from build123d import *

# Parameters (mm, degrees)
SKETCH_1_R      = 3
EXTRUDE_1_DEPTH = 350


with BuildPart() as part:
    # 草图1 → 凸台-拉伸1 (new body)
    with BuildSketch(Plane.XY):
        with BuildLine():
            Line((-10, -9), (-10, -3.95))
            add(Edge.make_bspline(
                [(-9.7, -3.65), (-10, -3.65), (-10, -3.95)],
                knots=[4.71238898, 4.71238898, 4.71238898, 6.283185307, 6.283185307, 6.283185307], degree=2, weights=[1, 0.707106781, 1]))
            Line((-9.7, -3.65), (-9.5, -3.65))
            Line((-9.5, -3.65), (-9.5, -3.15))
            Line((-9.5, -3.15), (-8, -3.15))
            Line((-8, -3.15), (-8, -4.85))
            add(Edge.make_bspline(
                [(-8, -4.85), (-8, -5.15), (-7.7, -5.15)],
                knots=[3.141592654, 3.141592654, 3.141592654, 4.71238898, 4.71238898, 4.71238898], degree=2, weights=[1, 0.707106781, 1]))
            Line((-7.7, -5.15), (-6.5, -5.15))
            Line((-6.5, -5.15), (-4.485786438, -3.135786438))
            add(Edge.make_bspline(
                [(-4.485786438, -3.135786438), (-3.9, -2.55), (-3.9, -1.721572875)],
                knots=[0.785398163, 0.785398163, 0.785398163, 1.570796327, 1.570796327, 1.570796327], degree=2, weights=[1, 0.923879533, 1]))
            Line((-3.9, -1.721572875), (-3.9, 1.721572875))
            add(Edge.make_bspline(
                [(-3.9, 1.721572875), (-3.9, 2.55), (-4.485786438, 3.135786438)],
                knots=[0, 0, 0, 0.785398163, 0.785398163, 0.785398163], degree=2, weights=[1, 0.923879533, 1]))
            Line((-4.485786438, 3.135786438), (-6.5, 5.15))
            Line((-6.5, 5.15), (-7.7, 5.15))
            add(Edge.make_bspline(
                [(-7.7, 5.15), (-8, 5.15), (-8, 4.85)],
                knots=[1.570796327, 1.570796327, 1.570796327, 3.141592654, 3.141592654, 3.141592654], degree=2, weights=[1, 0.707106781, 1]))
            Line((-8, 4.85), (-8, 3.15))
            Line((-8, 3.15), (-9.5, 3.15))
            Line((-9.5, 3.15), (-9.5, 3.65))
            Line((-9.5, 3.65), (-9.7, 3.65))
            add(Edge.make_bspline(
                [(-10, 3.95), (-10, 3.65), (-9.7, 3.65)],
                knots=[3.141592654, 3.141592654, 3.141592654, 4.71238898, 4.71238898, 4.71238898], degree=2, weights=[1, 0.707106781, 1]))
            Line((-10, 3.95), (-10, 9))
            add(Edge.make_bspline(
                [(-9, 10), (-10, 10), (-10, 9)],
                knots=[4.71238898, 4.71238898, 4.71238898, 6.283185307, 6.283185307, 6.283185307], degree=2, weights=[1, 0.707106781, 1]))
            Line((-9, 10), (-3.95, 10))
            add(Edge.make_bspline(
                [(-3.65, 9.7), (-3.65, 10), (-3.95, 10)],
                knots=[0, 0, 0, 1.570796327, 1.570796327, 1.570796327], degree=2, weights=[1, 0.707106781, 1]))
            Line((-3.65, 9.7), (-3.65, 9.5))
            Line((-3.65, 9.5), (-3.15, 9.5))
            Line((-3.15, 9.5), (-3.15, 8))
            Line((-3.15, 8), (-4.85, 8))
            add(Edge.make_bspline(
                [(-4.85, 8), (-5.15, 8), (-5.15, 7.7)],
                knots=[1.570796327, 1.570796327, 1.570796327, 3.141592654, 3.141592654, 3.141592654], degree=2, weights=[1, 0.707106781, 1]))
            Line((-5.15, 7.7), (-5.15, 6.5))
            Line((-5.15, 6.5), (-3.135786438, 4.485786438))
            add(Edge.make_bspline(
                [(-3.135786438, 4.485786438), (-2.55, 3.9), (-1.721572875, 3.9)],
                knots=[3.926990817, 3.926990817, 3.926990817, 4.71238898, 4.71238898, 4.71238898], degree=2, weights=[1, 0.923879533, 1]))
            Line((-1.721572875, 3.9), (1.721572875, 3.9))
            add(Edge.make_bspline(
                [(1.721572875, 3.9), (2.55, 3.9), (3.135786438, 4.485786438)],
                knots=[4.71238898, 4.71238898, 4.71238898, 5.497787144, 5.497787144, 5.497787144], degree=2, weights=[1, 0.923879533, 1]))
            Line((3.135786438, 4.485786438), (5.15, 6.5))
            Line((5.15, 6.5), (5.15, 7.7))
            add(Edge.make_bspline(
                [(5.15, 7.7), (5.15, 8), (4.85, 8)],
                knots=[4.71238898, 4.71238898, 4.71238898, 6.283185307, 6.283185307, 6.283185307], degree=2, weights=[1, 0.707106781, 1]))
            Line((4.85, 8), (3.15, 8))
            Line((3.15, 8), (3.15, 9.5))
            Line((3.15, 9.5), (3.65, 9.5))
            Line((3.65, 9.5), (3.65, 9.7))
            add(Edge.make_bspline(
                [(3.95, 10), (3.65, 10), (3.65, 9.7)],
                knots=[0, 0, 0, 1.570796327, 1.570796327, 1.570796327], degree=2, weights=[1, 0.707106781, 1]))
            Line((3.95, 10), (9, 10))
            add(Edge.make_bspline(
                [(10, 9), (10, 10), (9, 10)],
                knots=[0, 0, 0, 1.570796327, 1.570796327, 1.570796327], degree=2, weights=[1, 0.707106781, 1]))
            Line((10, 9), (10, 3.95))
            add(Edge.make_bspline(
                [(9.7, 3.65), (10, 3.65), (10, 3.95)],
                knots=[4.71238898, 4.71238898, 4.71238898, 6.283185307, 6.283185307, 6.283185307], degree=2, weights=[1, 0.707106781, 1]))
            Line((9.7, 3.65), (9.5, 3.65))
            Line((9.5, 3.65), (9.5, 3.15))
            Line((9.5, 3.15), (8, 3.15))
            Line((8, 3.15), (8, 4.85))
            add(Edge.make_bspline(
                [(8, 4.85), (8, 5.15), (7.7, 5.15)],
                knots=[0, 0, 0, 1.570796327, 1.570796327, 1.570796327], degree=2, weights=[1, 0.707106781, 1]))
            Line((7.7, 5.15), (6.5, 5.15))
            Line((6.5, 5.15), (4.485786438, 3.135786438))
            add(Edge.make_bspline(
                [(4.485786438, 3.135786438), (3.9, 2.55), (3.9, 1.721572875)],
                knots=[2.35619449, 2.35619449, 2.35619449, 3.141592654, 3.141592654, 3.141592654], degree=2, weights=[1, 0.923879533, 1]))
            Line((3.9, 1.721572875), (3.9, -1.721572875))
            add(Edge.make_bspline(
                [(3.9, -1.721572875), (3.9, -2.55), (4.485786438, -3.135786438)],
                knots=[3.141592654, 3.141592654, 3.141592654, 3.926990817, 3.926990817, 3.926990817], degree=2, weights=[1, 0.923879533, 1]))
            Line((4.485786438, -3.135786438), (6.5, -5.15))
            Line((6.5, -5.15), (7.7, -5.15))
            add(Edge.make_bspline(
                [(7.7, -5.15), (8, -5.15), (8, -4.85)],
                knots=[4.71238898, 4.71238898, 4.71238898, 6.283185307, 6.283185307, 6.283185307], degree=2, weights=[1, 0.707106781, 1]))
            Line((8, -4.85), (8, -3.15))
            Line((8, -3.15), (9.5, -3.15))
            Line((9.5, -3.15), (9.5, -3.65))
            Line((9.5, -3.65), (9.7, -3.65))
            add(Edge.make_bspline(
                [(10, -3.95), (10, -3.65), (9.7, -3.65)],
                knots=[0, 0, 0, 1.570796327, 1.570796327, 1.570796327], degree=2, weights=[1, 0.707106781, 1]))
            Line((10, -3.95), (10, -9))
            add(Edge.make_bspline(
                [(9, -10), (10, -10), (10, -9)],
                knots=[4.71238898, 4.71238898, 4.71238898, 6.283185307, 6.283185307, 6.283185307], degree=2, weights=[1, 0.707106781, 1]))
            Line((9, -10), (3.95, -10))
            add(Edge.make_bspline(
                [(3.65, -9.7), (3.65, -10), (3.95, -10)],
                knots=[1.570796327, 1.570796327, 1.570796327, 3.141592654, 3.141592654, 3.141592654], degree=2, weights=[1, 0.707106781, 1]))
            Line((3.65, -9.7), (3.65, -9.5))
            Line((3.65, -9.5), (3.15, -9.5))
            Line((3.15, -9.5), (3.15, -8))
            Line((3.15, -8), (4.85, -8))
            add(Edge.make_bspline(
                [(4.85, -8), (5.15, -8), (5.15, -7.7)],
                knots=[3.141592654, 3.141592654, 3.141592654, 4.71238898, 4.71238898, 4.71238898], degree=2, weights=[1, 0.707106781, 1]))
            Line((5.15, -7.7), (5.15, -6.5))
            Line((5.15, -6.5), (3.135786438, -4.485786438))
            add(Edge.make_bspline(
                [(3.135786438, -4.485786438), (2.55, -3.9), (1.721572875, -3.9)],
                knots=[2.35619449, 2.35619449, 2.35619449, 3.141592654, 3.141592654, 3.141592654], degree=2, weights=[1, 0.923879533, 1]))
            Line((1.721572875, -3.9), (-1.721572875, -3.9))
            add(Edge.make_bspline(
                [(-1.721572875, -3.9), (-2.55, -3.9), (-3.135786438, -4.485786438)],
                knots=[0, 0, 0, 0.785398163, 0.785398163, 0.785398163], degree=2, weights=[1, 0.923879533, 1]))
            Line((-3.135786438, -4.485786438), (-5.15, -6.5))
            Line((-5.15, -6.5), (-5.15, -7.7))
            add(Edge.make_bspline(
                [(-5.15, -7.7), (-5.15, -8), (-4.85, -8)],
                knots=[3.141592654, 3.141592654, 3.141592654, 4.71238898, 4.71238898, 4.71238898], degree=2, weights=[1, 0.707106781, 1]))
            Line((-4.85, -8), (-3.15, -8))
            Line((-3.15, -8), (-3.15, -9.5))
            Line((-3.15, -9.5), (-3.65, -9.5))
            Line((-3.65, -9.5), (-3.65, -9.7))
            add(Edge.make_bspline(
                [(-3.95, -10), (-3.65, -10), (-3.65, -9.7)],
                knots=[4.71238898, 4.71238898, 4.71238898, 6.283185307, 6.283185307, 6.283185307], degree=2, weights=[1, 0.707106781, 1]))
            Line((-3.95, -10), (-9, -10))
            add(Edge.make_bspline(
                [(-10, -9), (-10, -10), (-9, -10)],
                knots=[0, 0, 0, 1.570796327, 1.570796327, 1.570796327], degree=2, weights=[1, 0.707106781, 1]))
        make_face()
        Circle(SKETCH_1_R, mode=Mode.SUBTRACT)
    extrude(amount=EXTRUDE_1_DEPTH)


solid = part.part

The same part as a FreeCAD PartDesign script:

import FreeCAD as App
import Part
import Sketcher

V = App.Vector

doc = App.newDocument("Part")
params = doc.addObject("Spreadsheet::Sheet", "Params")
for row, (alias, value) in enumerate([
    ("sketch1_diameter", "6 mm"),
    ("sketch1_width", "0.5 mm"),
    ("sketch1_width2", "1.7 mm"),
    ("sketch1_width3", "0.2 mm"),
    ("sketch1_width4", "1.2 mm"),
    ("pad1_length", "350 mm"),
], start=1):
    params.set(f"A{row}", alias)
    params.set(f"B{row}", "=" + value)
    params.setAlias(f"B{row}", alias)

body = doc.addObject("PartDesign::Body", "Body")

sketch1 = doc.addObject("Sketcher::SketchObject", "Sketch")
body.addObject(sketch1)
sketch1.AttachmentSupport = (doc.XY_Plane, [""])
sketch1.MapMode = "FlatFace"
sketch1.addGeometry([
    Part.LineSegment(V(-10, -3.95, 0), V(-10, -9, 0)),
    Part.BSplineCurve([V(-10, -9, 0), V(-10, -10, 0), V(-9, -10, 0)], [3, 3], [0, 1.570796327], False, 2, [1, 0.707106781, 1], False),
    Part.LineSegment(V(-9, -10, 0), V(-3.95, -10, 0)),
    Part.BSplineCurve([V(-3.95, -10, 0), V(-3.65, -10, 0), V(-3.65, -9.7, 0)], [3, 3], [4.71238898, 6.283185307], False, 2, [1, 0.707106781, 1], False),
    Part.LineSegment(V(-3.65, -9.7, 0), V(-3.65, -9.5, 0)),
    Part.LineSegment(V(-3.65, -9.5, 0), V(-3.15, -9.5, 0)),
    Part.LineSegment(V(-3.15, -9.5, 0), V(-3.15, -8, 0)),
    Part.LineSegment(V(-3.15, -8, 0), V(-4.85, -8, 0)),
    Part.BSplineCurve([V(-5.15, -7.7, 0), V(-5.15, -8, 0), V(-4.85, -8, 0)], [3, 3], [3.141592654, 4.71238898], False, 2, [1, 0.707106781, 1], False),
    Part.LineSegment(V(-5.15, -7.7, 0), V(-5.15, -6.5, 0)),
    Part.LineSegment(V(-5.15, -6.5, 0), V(-3.135786, -4.485786, 0)),
    Part.BSplineCurve([V(-1.721573, -3.9, 0), V(-2.55, -3.9, 0), V(-3.135786, -4.485786, 0)], [3, 3], [0, 0.785398163], False, 2, [1, 0.923879533, 1], False),
    Part.LineSegment(V(-1.721573, -3.9, 0), V(1.721573, -3.9, 0)),
    Part.BSplineCurve([V(3.135786, -4.485786, 0), V(2.55, -3.9, 0), V(1.721573, -3.9, 0)], [3, 3], [2.35619449, 3.141592654], False, 2, [1, 0.923879533, 1], False),
    Part.LineSegment(V(3.135786, -4.485786, 0), V(5.15, -6.5, 0)),
    Part.LineSegment(V(5.15, -6.5, 0), V(5.15, -7.7, 0)),
    Part.BSplineCurve([V(4.85, -8, 0), V(5.15, -8, 0), V(5.15, -7.7, 0)], [3, 3], [3.141592654, 4.71238898], False, 2, [1, 0.707106781, 1], False),
    Part.LineSegment(V(4.85, -8, 0), V(3.15, -8, 0)),
    Part.LineSegment(V(3.15, -8, 0), V(3.15, -9.5, 0)),
    Part.LineSegment(V(3.15, -9.5, 0), V(3.65, -9.5, 0)),
    Part.LineSegment(V(3.65, -9.5, 0), V(3.65, -9.7, 0)),
    Part.BSplineCurve([V(3.65, -9.7, 0), V(3.65, -10, 0), V(3.95, -10, 0)], [3, 3], [1.570796327, 3.141592654], False, 2, [1, 0.707106781, 1], False),
    Part.LineSegment(V(3.95, -10, 0), V(9, -10, 0)),
    Part.BSplineCurve([V(9, -10, 0), V(10, -10, 0), V(10, -9, 0)], [3, 3], [4.71238898, 6.283185307], False, 2, [1, 0.707106781, 1], False),
    Part.LineSegment(V(10, -9, 0), V(10, -3.95, 0)),
    Part.BSplineCurve([V(10, -3.95, 0), V(10, -3.65, 0), V(9.7, -3.65, 0)], [3, 3], [0, 1.570796327], False, 2, [1, 0.707106781, 1], False),
    Part.LineSegment(V(9.7, -3.65, 0), V(9.5, -3.65, 0)),
    Part.LineSegment(V(9.5, -3.65, 0), V(9.5, -3.15, 0)),
    Part.LineSegment(V(9.5, -3.15, 0), V(8, -3.15, 0)),
    Part.LineSegment(V(8, -3.15, 0), V(8, -4.85, 0)),
    Part.BSplineCurve([V(7.7, -5.15, 0), V(8, -5.15, 0), V(8, -4.85, 0)], [3, 3], [4.71238898, 6.283185307], False, 2, [1, 0.707106781, 1], False),
    Part.LineSegment(V(7.7, -5.15, 0), V(6.5, -5.15, 0)),
    Part.LineSegment(V(6.5, -5.15, 0), V(4.485786, -3.135786, 0)),
    Part.BSplineCurve([V(3.9, -1.721573, 0), V(3.9, -2.55, 0), V(4.485786, -3.135786, 0)], [3, 3], [3.141592654, 3.926990817], False, 2, [1, 0.923879533, 1], False),
    Part.LineSegment(V(3.9, -1.721573, 0), V(3.9, 1.721573, 0)),
    Part.BSplineCurve([V(4.485786, 3.135786, 0), V(3.9, 2.55, 0), V(3.9, 1.721573, 0)], [3, 3], [2.35619449, 3.141592654], False, 2, [1, 0.923879533, 1], False),
    Part.LineSegment(V(4.485786, 3.135786, 0), V(6.5, 5.15, 0)),
    Part.LineSegment(V(6.5, 5.15, 0), V(7.7, 5.15, 0)),
    Part.BSplineCurve([V(8, 4.85, 0), V(8, 5.15, 0), V(7.7, 5.15, 0)], [3, 3], [0, 1.570796327], False, 2, [1, 0.707106781, 1], False),
    Part.LineSegment(V(8, 4.85, 0), V(8, 3.15, 0)),
    Part.LineSegment(V(8, 3.15, 0), V(9.5, 3.15, 0)),
    Part.LineSegment(V(9.5, 3.15, 0), V(9.5, 3.65, 0)),
    Part.LineSegment(V(9.5, 3.65, 0), V(9.7, 3.65, 0)),
    Part.BSplineCurve([V(9.7, 3.65, 0), V(10, 3.65, 0), V(10, 3.95, 0)], [3, 3], [4.71238898, 6.283185307], False, 2, [1, 0.707106781, 1], False),
    Part.LineSegment(V(10, 3.95, 0), V(10, 9, 0)),
    Part.BSplineCurve([V(10, 9, 0), V(10, 10, 0), V(9, 10, 0)], [3, 3], [0, 1.570796327], False, 2, [1, 0.707106781, 1], False),
    Part.LineSegment(V(9, 10, 0), V(3.95, 10, 0)),
    Part.BSplineCurve([V(3.95, 10, 0), V(3.65, 10, 0), V(3.65, 9.7, 0)], [3, 3], [0, 1.570796327], False, 2, [1, 0.707106781, 1], False),
    Part.LineSegment(V(3.65, 9.7, 0), V(3.65, 9.5, 0)),
    Part.LineSegment(V(3.65, 9.5, 0), V(3.15, 9.5, 0)),
    Part.LineSegment(V(3.15, 9.5, 0), V(3.15, 8, 0)),
    Part.LineSegment(V(3.15, 8, 0), V(4.85, 8, 0)),
    Part.BSplineCurve([V(5.15, 7.7, 0), V(5.15, 8, 0), V(4.85, 8, 0)], [3, 3], [4.71238898, 6.283185307], False, 2, [1, 0.707106781, 1], False),
    Part.LineSegment(V(5.15, 7.7, 0), V(5.15, 6.5, 0)),
    Part.LineSegment(V(5.15, 6.5, 0), V(3.135786, 4.485786, 0)),
    Part.BSplineCurve([V(1.721573, 3.9, 0), V(2.55, 3.9, 0), V(3.135786, 4.485786, 0)], [3, 3], [4.71238898, 5.497787144], False, 2, [1, 0.923879533, 1], False),
    Part.LineSegment(V(1.721573, 3.9, 0), V(-1.721573, 3.9, 0)),
    Part.BSplineCurve([V(-3.135786, 4.485786, 0), V(-2.55, 3.9, 0), V(-1.721573, 3.9, 0)], [3, 3], [3.926990817, 4.71238898], False, 2, [1, 0.923879533, 1], False),
    Part.LineSegment(V(-3.135786, 4.485786, 0), V(-5.15, 6.5, 0)),
    Part.LineSegment(V(-5.15, 6.5, 0), V(-5.15, 7.7, 0)),
    Part.BSplineCurve([V(-4.85, 8, 0), V(-5.15, 8, 0), V(-5.15, 7.7, 0)], [3, 3], [1.570796327, 3.141592654], False, 2, [1, 0.707106781, 1], False),
    Part.LineSegment(V(-4.85, 8, 0), V(-3.15, 8, 0)),
    Part.LineSegment(V(-3.15, 8, 0), V(-3.15, 9.5, 0)),
    Part.LineSegment(V(-3.15, 9.5, 0), V(-3.65, 9.5, 0)),
    Part.LineSegment(V(-3.65, 9.5, 0), V(-3.65, 9.7, 0)),
    Part.BSplineCurve([V(-3.65, 9.7, 0), V(-3.65, 10, 0), V(-3.95, 10, 0)], [3, 3], [0, 1.570796327], False, 2, [1, 0.707106781, 1], False),
    Part.LineSegment(V(-3.95, 10, 0), V(-9, 10, 0)),
    Part.BSplineCurve([V(-9, 10, 0), V(-10, 10, 0), V(-10, 9, 0)], [3, 3], [4.71238898, 6.283185307], False, 2, [1, 0.707106781, 1], False),
    Part.LineSegment(V(-10, 9, 0), V(-10, 3.95, 0)),
    Part.BSplineCurve([V(-10, 3.95, 0), V(-10, 3.65, 0), V(-9.7, 3.65, 0)], [3, 3], [3.141592654, 4.71238898], False, 2, [1, 0.707106781, 1], False),
    Part.LineSegment(V(-9.7, 3.65, 0), V(-9.5, 3.65, 0)),
    Part.LineSegment(V(-9.5, 3.65, 0), V(-9.5, 3.15, 0)),
    Part.LineSegment(V(-9.5, 3.15, 0), V(-8, 3.15, 0)),
    Part.LineSegment(V(-8, 3.15, 0), V(-8, 4.85, 0)),
    Part.BSplineCurve([V(-7.7, 5.15, 0), V(-8, 5.15, 0), V(-8, 4.85, 0)], [3, 3], [1.570796327, 3.141592654], False, 2, [1, 0.707106781, 1], False),
    Part.LineSegment(V(-7.7, 5.15, 0), V(-6.5, 5.15, 0)),
    Part.LineSegment(V(-6.5, 5.15, 0), V(-4.485786, 3.135786, 0)),
    Part.BSplineCurve([V(-3.9, 1.721573, 0), V(-3.9, 2.55, 0), V(-4.485786, 3.135786, 0)], [3, 3], [0, 0.785398163], False, 2, [1, 0.923879533, 1], False),
    Part.LineSegment(V(-3.9, 1.721573, 0), V(-3.9, -1.721573, 0)),
    Part.BSplineCurve([V(-4.485786, -3.135786, 0), V(-3.9, -2.55, 0), V(-3.9, -1.721573, 0)], [3, 3], [0.785398163, 1.570796327], False, 2, [1, 0.923879533, 1], False),
    Part.LineSegment(V(-4.485786, -3.135786, 0), V(-6.5, -5.15, 0)),
    Part.LineSegment(V(-6.5, -5.15, 0), V(-7.7, -5.15, 0)),
    Part.BSplineCurve([V(-8, -4.85, 0), V(-8, -5.15, 0), V(-7.7, -5.15, 0)], [3, 3], [3.141592654, 4.71238898], False, 2, [1, 0.707106781, 1], False),
    Part.LineSegment(V(-8, -4.85, 0), V(-8, -3.15, 0)),
    Part.LineSegment(V(-8, -3.15, 0), V(-9.5, -3.15, 0)),
    Part.LineSegment(V(-9.5, -3.15, 0), V(-9.5, -3.65, 0)),
    Part.LineSegment(V(-9.5, -3.65, 0), V(-9.7, -3.65, 0)),
    Part.BSplineCurve([V(-9.7, -3.65, 0), V(-10, -3.65, 0), V(-10, -3.95, 0)], [3, 3], [4.71238898, 6.283185307], False, 2, [1, 0.707106781, 1], False),
    Part.Circle(V(0, 0, 0), V(0, 0, 1), 3),
], False)
sketch1.addConstraint([
    Sketcher.Constraint("Block", 1),
    Sketcher.Constraint("Block", 3),
    Sketcher.Constraint("Block", 8),
    Sketcher.Constraint("Block", 11),
    Sketcher.Constraint("Block", 13),
    Sketcher.Constraint("Block", 16),
    Sketcher.Constraint("Block", 21),
    Sketcher.Constraint("Block", 23),
    Sketcher.Constraint("Block", 25),
    Sketcher.Constraint("Block", 30),
    Sketcher.Constraint("Block", 33),
    Sketcher.Constraint("Block", 35),
    Sketcher.Constraint("Block", 38),
    Sketcher.Constraint("Block", 43),
    Sketcher.Constraint("Block", 45),
    Sketcher.Constraint("Block", 47),
    Sketcher.Constraint("Block", 52),
    Sketcher.Constraint("Block", 55),
    Sketcher.Constraint("Block", 57),
    Sketcher.Constraint("Block", 60),
    Sketcher.Constraint("Block", 65),
    Sketcher.Constraint("Block", 67),
    Sketcher.Constraint("Block", 69),
    Sketcher.Constraint("Block", 74),
    Sketcher.Constraint("Block", 77),
    Sketcher.Constraint("Block", 79),
    Sketcher.Constraint("Block", 82),
    Sketcher.Constraint("Block", 87),
    Sketcher.Constraint("Coincident", 0, 2, 1, 1),
    Sketcher.Constraint("Coincident", 1, 2, 2, 1),
    Sketcher.Constraint("Coincident", 2, 2, 3, 1),
    Sketcher.Constraint("Coincident", 3, 2, 4, 1),
    Sketcher.Constraint("Coincident", 4, 2, 5, 1),
    Sketcher.Constraint("Coincident", 5, 2, 6, 1),
    Sketcher.Constraint("Coincident", 6, 2, 7, 1),
    Sketcher.Constraint("Coincident", 7, 2, 8, 2),
    Sketcher.Constraint("Coincident", 8, 1, 9, 1),
    Sketcher.Constraint("Coincident", 9, 2, 10, 1),
    Sketcher.Constraint("Coincident", 10, 2, 11, 2),
    Sketcher.Constraint("Coincident", 11, 1, 12, 1),
    Sketcher.Constraint("Coincident", 12, 2, 13, 2),
    Sketcher.Constraint("Coincident", 13, 1, 14, 1),
    Sketcher.Constraint("Coincident", 14, 2, 15, 1),
    Sketcher.Constraint("Coincident", 15, 2, 16, 2),
    Sketcher.Constraint("Coincident", 16, 1, 17, 1),
    Sketcher.Constraint("Coincident", 17, 2, 18, 1),
    Sketcher.Constraint("Coincident", 18, 2, 19, 1),
    Sketcher.Constraint("Coincident", 19, 2, 20, 1),
    Sketcher.Constraint("Coincident", 20, 2, 21, 1),
    Sketcher.Constraint("Coincident", 21, 2, 22, 1),
    Sketcher.Constraint("Coincident", 22, 2, 23, 1),
    Sketcher.Constraint("Coincident", 23, 2, 24, 1),
    Sketcher.Constraint("Coincident", 24, 2, 25, 1),
    Sketcher.Constraint("Coincident", 25, 2, 26, 1),
    Sketcher.Constraint("Coincident", 26, 2, 27, 1),
    Sketcher.Constraint("Coincident", 27, 2, 28, 1),
    Sketcher.Constraint("Coincident", 28, 2, 29, 1),
    Sketcher.Constraint("Coincident", 29, 2, 30, 2),
    Sketcher.Constraint("Coincident", 30, 1, 31, 1),
    Sketcher.Constraint("Coincident", 31, 2, 32, 1),
    Sketcher.Constraint("Coincident", 32, 2, 33, 2),
    Sketcher.Constraint("Coincident", 33, 1, 34, 1),
    Sketcher.Constraint("Coincident", 34, 2, 35, 2),
    Sketcher.Constraint("Coincident", 35, 1, 36, 1),
    Sketcher.Constraint("Coincident", 36, 2, 37, 1),
    Sketcher.Constraint("Coincident", 37, 2, 38, 2),
    Sketcher.Constraint("Coincident", 38, 1, 39, 1),
    Sketcher.Constraint("Coincident", 39, 2, 40, 1),
    Sketcher.Constraint("Coincident", 40, 2, 41, 1),
    Sketcher.Constraint("Coincident", 41, 2, 42, 1),
    Sketcher.Constraint("Coincident", 42, 2, 43, 1),
    Sketcher.Constraint("Coincident", 43, 2, 44, 1),
    Sketcher.Constraint("Coincident", 44, 2, 45, 1),
    Sketcher.Constraint("Coincident", 45, 2, 46, 1),
    Sketcher.Constraint("Coincident", 46, 2, 47, 1),
    Sketcher.Constraint("Coincident", 47, 2, 48, 1),
    Sketcher.Constraint("Coincident", 48, 2, 49, 1),
    Sketcher.Constraint("Coincident", 49, 2, 50, 1),
    Sketcher.Constraint("Coincident", 50, 2, 51, 1),
    Sketcher.Constraint("Coincident", 51, 2, 52, 2),
    Sketcher.Constraint("Coincident", 52, 1, 53, 1),
    Sketcher.Constraint("Coincident", 53, 2, 54, 1),
    Sketcher.Constraint("Coincident", 54, 2, 55, 2),
    Sketcher.Constraint("Coincident", 55, 1, 56, 1),
    Sketcher.Constraint("Coincident", 56, 2, 57, 2),
    Sketcher.Constraint("Coincident", 57, 1, 58, 1),
    Sketcher.Constraint("Coincident", 58, 2, 59, 1),
    Sketcher.Constraint("Coincident", 59, 2, 60, 2),
    Sketcher.Constraint("Coincident", 60, 1, 61, 1),
    Sketcher.Constraint("Coincident", 61, 2, 62, 1),
    Sketcher.Constraint("Coincident", 62, 2, 63, 1),
    Sketcher.Constraint("Coincident", 63, 2, 64, 1),
    Sketcher.Constraint("Coincident", 64, 2, 65, 1),
    Sketcher.Constraint("Coincident", 65, 2, 66, 1),
    Sketcher.Constraint("Coincident", 66, 2, 67, 1),
    Sketcher.Constraint("Coincident", 67, 2, 68, 1),
    Sketcher.Constraint("Coincident", 68, 2, 69, 1),
    Sketcher.Constraint("Coincident", 69, 2, 70, 1),
    Sketcher.Constraint("Coincident", 70, 2, 71, 1),
    Sketcher.Constraint("Coincident", 71, 2, 72, 1),
    Sketcher.Constraint("Coincident", 72, 2, 73, 1),
    Sketcher.Constraint("Coincident", 73, 2, 74, 2),
    Sketcher.Constraint("Coincident", 74, 1, 75, 1),
    Sketcher.Constraint("Coincident", 75, 2, 76, 1),
    Sketcher.Constraint("Coincident", 76, 2, 77, 2),
    Sketcher.Constraint("Coincident", 77, 1, 78, 1),
    Sketcher.Constraint("Coincident", 78, 2, 79, 2),
    Sketcher.Constraint("Coincident", 79, 1, 80, 1),
    Sketcher.Constraint("Coincident", 80, 2, 81, 1),
    Sketcher.Constraint("Coincident", 81, 2, 82, 2),
    Sketcher.Constraint("Coincident", 82, 1, 83, 1),
    Sketcher.Constraint("Coincident", 83, 2, 84, 1),
    Sketcher.Constraint("Coincident", 84, 2, 85, 1),
    Sketcher.Constraint("Coincident", 85, 2, 86, 1),
    Sketcher.Constraint("Coincident", 86, 2, 87, 1),
    Sketcher.Constraint("Coincident", 87, 2, 0, 1),
    Sketcher.Constraint("Vertical", 4),
    Sketcher.Constraint("Horizontal", 5),
    Sketcher.Constraint("Vertical", 6),
    Sketcher.Constraint("Horizontal", 7),
    Sketcher.Constraint("Vertical", 9),
    Sketcher.Constraint("Vertical", 15),
    Sketcher.Constraint("Horizontal", 17),
    Sketcher.Constraint("Vertical", 18),
    Sketcher.Constraint("Horizontal", 19),
    Sketcher.Constraint("Vertical", 20),
    Sketcher.Constraint("Horizontal", 26),
    Sketcher.Constraint("Vertical", 27),
    Sketcher.Constraint("Horizontal", 28),
    Sketcher.Constraint("Vertical", 29),
    Sketcher.Constraint("Horizontal", 31),
    Sketcher.Constraint("Horizontal", 37),
    Sketcher.Constraint("Vertical", 39),
    Sketcher.Constraint("Horizontal", 40),
    Sketcher.Constraint("Vertical", 41),
    Sketcher.Constraint("Horizontal", 42),
    Sketcher.Constraint("Vertical", 48),
    Sketcher.Constraint("Horizontal", 49),
    Sketcher.Constraint("Vertical", 50),
    Sketcher.Constraint("Horizontal", 51),
    Sketcher.Constraint("Vertical", 53),
    Sketcher.Constraint("Vertical", 59),
    Sketcher.Constraint("Horizontal", 61),
    Sketcher.Constraint("Vertical", 62),
    Sketcher.Constraint("Horizontal", 63),
    Sketcher.Constraint("Vertical", 64),
    Sketcher.Constraint("Horizontal", 70),
    Sketcher.Constraint("Vertical", 71),
    Sketcher.Constraint("Horizontal", 72),
    Sketcher.Constraint("Vertical", 73),
    Sketcher.Constraint("Horizontal", 75),
    Sketcher.Constraint("Horizontal", 81),
    Sketcher.Constraint("Vertical", 83),
    Sketcher.Constraint("Horizontal", 84),
    Sketcher.Constraint("Vertical", 85),
    Sketcher.Constraint("Horizontal", 86),
    Sketcher.Constraint("Coincident", 88, 3, -1, 1),
    Sketcher.Constraint("Diameter", 88, 6.0),
    Sketcher.Constraint("DistanceX", 5, 1, 5, 2, 0.5),
    Sketcher.Constraint("DistanceX", 17, 2, 17, 1, 1.7),
    Sketcher.Constraint("DistanceX", 26, 2, 26, 1, 0.2),
    Sketcher.Constraint("DistanceX", 31, 2, 31, 1, 1.2),
    Sketcher.Constraint("DistanceX", 37, 1, 37, 2, 1.2),
    Sketcher.Constraint("DistanceX", 40, 1, 40, 2, 1.5),
    Sketcher.Constraint("DistanceX", 49, 2, 49, 1, 0.5),
    Sketcher.Constraint("DistanceX", 61, 1, 61, 2, 1.7),
    Sketcher.Constraint("DistanceX", 70, 1, 70, 2, 0.2),
    Sketcher.Constraint("DistanceX", 75, 1, 75, 2, 1.2),
    Sketcher.Constraint("DistanceX", 81, 2, 81, 1, 1.2),
    Sketcher.Constraint("DistanceX", 84, 2, 84, 1, 1.5),
    Sketcher.Constraint("DistanceY", 4, 1, 4, 2, 0.2),
    Sketcher.Constraint("DistanceY", 9, 1, 9, 2, 1.2),
    Sketcher.Constraint("DistanceY", 15, 2, 15, 1, 1.2),
    Sketcher.Constraint("DistanceY", 18, 2, 18, 1, 1.5),
    Sketcher.Constraint("DistanceY", 27, 1, 27, 2, 0.5),
    Sketcher.Constraint("DistanceY", 39, 2, 39, 1, 1.7),
    Sketcher.Constraint("DistanceY", 48, 2, 48, 1, 0.2),
    Sketcher.Constraint("DistanceY", 53, 2, 53, 1, 1.2),
    Sketcher.Constraint("DistanceY", 59, 1, 59, 2, 1.2),
    Sketcher.Constraint("DistanceY", 62, 1, 62, 2, 1.5),
    Sketcher.Constraint("DistanceY", 71, 2, 71, 1, 0.5),
    Sketcher.Constraint("DistanceY", 83, 1, 83, 2, 1.7),
])
sketch1.setExpression("Constraints[157]", "Params.sketch1_diameter")
sketch1.setExpression("Constraints[158]", "Params.sketch1_width")
sketch1.setExpression("Constraints[159]", "Params.sketch1_width2")
sketch1.setExpression("Constraints[160]", "Params.sketch1_width3")
sketch1.setExpression("Constraints[161]", "Params.sketch1_width4")
pad1 = doc.addObject("PartDesign::Pad", "Pad")
body.addObject(pad1)
pad1.Profile = sketch1
pad1.setExpression("Length", "Params.pad1_length")

doc.recompute()
